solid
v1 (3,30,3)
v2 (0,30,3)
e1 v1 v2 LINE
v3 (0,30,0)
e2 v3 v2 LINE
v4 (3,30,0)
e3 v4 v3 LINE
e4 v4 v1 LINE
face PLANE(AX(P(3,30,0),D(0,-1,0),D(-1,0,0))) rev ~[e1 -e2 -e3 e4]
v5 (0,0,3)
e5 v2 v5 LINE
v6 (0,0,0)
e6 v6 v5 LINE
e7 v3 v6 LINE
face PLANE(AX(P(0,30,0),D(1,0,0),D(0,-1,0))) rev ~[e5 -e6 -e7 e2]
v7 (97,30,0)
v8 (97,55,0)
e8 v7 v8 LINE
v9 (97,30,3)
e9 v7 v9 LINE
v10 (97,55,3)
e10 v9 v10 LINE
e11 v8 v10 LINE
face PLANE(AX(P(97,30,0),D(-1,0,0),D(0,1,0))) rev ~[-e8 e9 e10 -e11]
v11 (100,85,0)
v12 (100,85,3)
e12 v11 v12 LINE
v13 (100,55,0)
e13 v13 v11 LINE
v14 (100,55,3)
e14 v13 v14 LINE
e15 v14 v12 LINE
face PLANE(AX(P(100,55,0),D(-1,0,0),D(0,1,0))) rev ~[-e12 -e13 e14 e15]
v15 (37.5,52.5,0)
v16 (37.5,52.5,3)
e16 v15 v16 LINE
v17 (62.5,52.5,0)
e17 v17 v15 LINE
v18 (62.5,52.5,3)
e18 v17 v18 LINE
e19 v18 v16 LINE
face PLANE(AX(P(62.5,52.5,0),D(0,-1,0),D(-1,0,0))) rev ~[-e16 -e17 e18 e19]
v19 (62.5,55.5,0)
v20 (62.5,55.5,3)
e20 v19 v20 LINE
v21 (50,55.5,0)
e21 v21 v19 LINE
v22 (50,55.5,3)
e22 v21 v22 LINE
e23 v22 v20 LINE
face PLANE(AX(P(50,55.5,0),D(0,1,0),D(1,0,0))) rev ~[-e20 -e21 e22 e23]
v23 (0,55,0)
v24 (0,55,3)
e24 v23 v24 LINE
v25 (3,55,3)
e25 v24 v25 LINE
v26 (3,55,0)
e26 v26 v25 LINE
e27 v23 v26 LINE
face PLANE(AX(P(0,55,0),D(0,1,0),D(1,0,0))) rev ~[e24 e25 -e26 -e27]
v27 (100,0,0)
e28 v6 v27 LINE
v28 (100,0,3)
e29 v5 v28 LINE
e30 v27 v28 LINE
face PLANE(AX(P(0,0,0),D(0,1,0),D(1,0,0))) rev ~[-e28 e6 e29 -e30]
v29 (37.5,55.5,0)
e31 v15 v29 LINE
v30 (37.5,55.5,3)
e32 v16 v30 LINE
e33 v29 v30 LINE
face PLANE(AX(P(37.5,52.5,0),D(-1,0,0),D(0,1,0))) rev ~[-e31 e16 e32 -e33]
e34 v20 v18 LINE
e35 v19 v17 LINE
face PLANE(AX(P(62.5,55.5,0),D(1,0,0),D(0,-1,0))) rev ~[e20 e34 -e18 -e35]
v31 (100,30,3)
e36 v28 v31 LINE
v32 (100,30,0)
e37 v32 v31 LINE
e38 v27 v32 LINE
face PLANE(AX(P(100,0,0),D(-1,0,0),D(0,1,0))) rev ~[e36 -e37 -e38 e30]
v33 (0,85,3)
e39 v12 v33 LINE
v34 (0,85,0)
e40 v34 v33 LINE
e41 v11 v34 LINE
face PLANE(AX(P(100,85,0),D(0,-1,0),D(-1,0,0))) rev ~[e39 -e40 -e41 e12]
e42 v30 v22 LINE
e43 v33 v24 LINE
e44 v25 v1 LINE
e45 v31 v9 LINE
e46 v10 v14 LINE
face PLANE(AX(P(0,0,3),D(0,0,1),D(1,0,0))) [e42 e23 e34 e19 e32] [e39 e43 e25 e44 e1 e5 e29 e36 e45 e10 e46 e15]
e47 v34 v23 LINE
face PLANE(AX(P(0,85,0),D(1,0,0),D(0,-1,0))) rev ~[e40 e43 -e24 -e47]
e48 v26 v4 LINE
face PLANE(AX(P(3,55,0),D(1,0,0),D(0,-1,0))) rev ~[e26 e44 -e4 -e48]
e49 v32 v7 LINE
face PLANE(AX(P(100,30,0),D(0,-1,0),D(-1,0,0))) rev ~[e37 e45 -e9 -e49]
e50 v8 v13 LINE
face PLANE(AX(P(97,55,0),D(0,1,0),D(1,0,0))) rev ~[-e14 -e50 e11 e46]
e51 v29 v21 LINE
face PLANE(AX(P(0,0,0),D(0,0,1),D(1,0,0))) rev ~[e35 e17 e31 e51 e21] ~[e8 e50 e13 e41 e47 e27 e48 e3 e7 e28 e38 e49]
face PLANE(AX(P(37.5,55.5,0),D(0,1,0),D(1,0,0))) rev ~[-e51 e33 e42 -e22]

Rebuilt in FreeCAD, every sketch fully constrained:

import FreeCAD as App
import Part
import Sketcher
from FreeCAD import Vector


def add_polygon(sketch, points):
    """Adds a closed chain of lines whose ends are joined by coincident constraints."""
    first, n = sketch.GeometryCount, len(points)
    for a, b in zip(points, points[1:] + points[:1]):
        sketch.addGeometry(Part.LineSegment(App.Vector(*a, 0), App.Vector(*b, 0)), False)
    for i in range(n):
        sketch.addConstraint(Sketcher.Constraint("Coincident", first + i, 2, first + (i + 1) % n, 1))

doc = App.newDocument("Part")
params = doc.addObject("Spreadsheet::Sheet", "Params")
for row, (alias, value) in enumerate([
    ("sketch1_width", "100 mm"),
    ("sketch1_width2", "3 mm"),
    ("sketch1_width3", "25 mm"),
    ("sketch1_height", "30 mm"),
    ("pad1_length", "3 mm"),
], start=1):
    params.set(f"A{row}", alias)
    params.set(f"B{row}", "=" + value)
    params.setAlias(f"B{row}", alias)

body = doc.addObject("PartDesign::Body", "Body")

sketch1 = body.newObject("Sketcher::SketchObject", "Sketch")
sketch1.AttachmentSupport = (doc.getObject("XY_Plane"), [""])
sketch1.MapMode = "FlatFace"
add_polygon(sketch1, [(0, 30), (0, 0), (100, 0), (100, 30), (97, 30), (97, 55), (100, 55), (100, 85), (0, 85), (0, 55), (3, 55), (3, 30)])
add_polygon(sketch1, [(37.5, 55.5), (62.5, 55.5), (62.5, 52.5), (37.5, 52.5)])
sketch1.addConstraint(Sketcher.Constraint("Vertical", 0))
sketch1.addConstraint(Sketcher.Constraint("Horizontal", 1))
sketch1.addConstraint(Sketcher.Constraint("Vertical", 2))
sketch1.addConstraint(Sketcher.Constraint("Horizontal", 3))
sketch1.addConstraint(Sketcher.Constraint("Vertical", 4))
sketch1.addConstraint(Sketcher.Constraint("Horizontal", 5))
sketch1.addConstraint(Sketcher.Constraint("Vertical", 6))
sketch1.addConstraint(Sketcher.Constraint("Horizontal", 7))
sketch1.addConstraint(Sketcher.Constraint("Vertical", 8))
sketch1.addConstraint(Sketcher.Constraint("Horizontal", 9))
sketch1.addConstraint(Sketcher.Constraint("Vertical", 10))
sketch1.addConstraint(Sketcher.Constraint("Horizontal", 11))
sketch1.addConstraint(Sketcher.Constraint("Horizontal", 12))
sketch1.addConstraint(Sketcher.Constraint("Vertical", 13))
sketch1.addConstraint(Sketcher.Constraint("Horizontal", 14))
sketch1.addConstraint(Sketcher.Constraint("Vertical", 15))
sketch1.addConstraint(Sketcher.Constraint("Coincident", 0, 2, -1, 1))
sketch1.addConstraint(Sketcher.Constraint("PointOnObject", 7, 2, -2))
sketch1.addConstraint(Sketcher.Constraint("Horizontal", 5, 2, 8, 2))
sketch1.addConstraint(Sketcher.Constraint("Horizontal", 3, 2, 10, 2))
sketch1.addConstraint(Sketcher.Constraint("Vertical", 2, 2, 5, 2))
sketch1.addConstraint(Sketcher.Constraint("Equal", 5, 9))
sketch1.addConstraint(Sketcher.Constraint("Equal", 14, 4))
sketch1.addConstraint(Sketcher.Constraint("Equal", 2, 6))
sketch1.addConstraint(Sketcher.Constraint("Equal", 11, 13))
sketch1.addConstraint(Sketcher.Constraint("DistanceX", 1, 1, 1, 2, 100.0))
sketch1.addConstraint(Sketcher.Constraint("DistanceX", 3, 2, 3, 1, 3.0))
sketch1.addConstraint(Sketcher.Constraint("DistanceX", 12, 1, 12, 2, 25.0))
sketch1.addConstraint(Sketcher.Constraint("DistanceY", 0, 2, 0, 1, 30.0))
sketch1.addConstraint(Sketcher.Constraint("DistanceY", -1, 1, 13, 2, 52.5))
sketch1.addConstraint(Sketcher.Constraint("DistanceX", -1, 1, 12, 2, 62.5))
sketch1.setExpression("Constraints[41]", "Params.sketch1_width")
sketch1.setExpression("Constraints[42]", "Params.sketch1_width2")
sketch1.setExpression("Constraints[43]", "Params.sketch1_width3")
sketch1.setExpression("Constraints[44]", "Params.sketch1_height")
pad1 = body.newObject("PartDesign::Pad", "Pad")
pad1.Profile = sketch1
pad1.setExpression("Length", "Params.pad1_length")

doc.recompute()
